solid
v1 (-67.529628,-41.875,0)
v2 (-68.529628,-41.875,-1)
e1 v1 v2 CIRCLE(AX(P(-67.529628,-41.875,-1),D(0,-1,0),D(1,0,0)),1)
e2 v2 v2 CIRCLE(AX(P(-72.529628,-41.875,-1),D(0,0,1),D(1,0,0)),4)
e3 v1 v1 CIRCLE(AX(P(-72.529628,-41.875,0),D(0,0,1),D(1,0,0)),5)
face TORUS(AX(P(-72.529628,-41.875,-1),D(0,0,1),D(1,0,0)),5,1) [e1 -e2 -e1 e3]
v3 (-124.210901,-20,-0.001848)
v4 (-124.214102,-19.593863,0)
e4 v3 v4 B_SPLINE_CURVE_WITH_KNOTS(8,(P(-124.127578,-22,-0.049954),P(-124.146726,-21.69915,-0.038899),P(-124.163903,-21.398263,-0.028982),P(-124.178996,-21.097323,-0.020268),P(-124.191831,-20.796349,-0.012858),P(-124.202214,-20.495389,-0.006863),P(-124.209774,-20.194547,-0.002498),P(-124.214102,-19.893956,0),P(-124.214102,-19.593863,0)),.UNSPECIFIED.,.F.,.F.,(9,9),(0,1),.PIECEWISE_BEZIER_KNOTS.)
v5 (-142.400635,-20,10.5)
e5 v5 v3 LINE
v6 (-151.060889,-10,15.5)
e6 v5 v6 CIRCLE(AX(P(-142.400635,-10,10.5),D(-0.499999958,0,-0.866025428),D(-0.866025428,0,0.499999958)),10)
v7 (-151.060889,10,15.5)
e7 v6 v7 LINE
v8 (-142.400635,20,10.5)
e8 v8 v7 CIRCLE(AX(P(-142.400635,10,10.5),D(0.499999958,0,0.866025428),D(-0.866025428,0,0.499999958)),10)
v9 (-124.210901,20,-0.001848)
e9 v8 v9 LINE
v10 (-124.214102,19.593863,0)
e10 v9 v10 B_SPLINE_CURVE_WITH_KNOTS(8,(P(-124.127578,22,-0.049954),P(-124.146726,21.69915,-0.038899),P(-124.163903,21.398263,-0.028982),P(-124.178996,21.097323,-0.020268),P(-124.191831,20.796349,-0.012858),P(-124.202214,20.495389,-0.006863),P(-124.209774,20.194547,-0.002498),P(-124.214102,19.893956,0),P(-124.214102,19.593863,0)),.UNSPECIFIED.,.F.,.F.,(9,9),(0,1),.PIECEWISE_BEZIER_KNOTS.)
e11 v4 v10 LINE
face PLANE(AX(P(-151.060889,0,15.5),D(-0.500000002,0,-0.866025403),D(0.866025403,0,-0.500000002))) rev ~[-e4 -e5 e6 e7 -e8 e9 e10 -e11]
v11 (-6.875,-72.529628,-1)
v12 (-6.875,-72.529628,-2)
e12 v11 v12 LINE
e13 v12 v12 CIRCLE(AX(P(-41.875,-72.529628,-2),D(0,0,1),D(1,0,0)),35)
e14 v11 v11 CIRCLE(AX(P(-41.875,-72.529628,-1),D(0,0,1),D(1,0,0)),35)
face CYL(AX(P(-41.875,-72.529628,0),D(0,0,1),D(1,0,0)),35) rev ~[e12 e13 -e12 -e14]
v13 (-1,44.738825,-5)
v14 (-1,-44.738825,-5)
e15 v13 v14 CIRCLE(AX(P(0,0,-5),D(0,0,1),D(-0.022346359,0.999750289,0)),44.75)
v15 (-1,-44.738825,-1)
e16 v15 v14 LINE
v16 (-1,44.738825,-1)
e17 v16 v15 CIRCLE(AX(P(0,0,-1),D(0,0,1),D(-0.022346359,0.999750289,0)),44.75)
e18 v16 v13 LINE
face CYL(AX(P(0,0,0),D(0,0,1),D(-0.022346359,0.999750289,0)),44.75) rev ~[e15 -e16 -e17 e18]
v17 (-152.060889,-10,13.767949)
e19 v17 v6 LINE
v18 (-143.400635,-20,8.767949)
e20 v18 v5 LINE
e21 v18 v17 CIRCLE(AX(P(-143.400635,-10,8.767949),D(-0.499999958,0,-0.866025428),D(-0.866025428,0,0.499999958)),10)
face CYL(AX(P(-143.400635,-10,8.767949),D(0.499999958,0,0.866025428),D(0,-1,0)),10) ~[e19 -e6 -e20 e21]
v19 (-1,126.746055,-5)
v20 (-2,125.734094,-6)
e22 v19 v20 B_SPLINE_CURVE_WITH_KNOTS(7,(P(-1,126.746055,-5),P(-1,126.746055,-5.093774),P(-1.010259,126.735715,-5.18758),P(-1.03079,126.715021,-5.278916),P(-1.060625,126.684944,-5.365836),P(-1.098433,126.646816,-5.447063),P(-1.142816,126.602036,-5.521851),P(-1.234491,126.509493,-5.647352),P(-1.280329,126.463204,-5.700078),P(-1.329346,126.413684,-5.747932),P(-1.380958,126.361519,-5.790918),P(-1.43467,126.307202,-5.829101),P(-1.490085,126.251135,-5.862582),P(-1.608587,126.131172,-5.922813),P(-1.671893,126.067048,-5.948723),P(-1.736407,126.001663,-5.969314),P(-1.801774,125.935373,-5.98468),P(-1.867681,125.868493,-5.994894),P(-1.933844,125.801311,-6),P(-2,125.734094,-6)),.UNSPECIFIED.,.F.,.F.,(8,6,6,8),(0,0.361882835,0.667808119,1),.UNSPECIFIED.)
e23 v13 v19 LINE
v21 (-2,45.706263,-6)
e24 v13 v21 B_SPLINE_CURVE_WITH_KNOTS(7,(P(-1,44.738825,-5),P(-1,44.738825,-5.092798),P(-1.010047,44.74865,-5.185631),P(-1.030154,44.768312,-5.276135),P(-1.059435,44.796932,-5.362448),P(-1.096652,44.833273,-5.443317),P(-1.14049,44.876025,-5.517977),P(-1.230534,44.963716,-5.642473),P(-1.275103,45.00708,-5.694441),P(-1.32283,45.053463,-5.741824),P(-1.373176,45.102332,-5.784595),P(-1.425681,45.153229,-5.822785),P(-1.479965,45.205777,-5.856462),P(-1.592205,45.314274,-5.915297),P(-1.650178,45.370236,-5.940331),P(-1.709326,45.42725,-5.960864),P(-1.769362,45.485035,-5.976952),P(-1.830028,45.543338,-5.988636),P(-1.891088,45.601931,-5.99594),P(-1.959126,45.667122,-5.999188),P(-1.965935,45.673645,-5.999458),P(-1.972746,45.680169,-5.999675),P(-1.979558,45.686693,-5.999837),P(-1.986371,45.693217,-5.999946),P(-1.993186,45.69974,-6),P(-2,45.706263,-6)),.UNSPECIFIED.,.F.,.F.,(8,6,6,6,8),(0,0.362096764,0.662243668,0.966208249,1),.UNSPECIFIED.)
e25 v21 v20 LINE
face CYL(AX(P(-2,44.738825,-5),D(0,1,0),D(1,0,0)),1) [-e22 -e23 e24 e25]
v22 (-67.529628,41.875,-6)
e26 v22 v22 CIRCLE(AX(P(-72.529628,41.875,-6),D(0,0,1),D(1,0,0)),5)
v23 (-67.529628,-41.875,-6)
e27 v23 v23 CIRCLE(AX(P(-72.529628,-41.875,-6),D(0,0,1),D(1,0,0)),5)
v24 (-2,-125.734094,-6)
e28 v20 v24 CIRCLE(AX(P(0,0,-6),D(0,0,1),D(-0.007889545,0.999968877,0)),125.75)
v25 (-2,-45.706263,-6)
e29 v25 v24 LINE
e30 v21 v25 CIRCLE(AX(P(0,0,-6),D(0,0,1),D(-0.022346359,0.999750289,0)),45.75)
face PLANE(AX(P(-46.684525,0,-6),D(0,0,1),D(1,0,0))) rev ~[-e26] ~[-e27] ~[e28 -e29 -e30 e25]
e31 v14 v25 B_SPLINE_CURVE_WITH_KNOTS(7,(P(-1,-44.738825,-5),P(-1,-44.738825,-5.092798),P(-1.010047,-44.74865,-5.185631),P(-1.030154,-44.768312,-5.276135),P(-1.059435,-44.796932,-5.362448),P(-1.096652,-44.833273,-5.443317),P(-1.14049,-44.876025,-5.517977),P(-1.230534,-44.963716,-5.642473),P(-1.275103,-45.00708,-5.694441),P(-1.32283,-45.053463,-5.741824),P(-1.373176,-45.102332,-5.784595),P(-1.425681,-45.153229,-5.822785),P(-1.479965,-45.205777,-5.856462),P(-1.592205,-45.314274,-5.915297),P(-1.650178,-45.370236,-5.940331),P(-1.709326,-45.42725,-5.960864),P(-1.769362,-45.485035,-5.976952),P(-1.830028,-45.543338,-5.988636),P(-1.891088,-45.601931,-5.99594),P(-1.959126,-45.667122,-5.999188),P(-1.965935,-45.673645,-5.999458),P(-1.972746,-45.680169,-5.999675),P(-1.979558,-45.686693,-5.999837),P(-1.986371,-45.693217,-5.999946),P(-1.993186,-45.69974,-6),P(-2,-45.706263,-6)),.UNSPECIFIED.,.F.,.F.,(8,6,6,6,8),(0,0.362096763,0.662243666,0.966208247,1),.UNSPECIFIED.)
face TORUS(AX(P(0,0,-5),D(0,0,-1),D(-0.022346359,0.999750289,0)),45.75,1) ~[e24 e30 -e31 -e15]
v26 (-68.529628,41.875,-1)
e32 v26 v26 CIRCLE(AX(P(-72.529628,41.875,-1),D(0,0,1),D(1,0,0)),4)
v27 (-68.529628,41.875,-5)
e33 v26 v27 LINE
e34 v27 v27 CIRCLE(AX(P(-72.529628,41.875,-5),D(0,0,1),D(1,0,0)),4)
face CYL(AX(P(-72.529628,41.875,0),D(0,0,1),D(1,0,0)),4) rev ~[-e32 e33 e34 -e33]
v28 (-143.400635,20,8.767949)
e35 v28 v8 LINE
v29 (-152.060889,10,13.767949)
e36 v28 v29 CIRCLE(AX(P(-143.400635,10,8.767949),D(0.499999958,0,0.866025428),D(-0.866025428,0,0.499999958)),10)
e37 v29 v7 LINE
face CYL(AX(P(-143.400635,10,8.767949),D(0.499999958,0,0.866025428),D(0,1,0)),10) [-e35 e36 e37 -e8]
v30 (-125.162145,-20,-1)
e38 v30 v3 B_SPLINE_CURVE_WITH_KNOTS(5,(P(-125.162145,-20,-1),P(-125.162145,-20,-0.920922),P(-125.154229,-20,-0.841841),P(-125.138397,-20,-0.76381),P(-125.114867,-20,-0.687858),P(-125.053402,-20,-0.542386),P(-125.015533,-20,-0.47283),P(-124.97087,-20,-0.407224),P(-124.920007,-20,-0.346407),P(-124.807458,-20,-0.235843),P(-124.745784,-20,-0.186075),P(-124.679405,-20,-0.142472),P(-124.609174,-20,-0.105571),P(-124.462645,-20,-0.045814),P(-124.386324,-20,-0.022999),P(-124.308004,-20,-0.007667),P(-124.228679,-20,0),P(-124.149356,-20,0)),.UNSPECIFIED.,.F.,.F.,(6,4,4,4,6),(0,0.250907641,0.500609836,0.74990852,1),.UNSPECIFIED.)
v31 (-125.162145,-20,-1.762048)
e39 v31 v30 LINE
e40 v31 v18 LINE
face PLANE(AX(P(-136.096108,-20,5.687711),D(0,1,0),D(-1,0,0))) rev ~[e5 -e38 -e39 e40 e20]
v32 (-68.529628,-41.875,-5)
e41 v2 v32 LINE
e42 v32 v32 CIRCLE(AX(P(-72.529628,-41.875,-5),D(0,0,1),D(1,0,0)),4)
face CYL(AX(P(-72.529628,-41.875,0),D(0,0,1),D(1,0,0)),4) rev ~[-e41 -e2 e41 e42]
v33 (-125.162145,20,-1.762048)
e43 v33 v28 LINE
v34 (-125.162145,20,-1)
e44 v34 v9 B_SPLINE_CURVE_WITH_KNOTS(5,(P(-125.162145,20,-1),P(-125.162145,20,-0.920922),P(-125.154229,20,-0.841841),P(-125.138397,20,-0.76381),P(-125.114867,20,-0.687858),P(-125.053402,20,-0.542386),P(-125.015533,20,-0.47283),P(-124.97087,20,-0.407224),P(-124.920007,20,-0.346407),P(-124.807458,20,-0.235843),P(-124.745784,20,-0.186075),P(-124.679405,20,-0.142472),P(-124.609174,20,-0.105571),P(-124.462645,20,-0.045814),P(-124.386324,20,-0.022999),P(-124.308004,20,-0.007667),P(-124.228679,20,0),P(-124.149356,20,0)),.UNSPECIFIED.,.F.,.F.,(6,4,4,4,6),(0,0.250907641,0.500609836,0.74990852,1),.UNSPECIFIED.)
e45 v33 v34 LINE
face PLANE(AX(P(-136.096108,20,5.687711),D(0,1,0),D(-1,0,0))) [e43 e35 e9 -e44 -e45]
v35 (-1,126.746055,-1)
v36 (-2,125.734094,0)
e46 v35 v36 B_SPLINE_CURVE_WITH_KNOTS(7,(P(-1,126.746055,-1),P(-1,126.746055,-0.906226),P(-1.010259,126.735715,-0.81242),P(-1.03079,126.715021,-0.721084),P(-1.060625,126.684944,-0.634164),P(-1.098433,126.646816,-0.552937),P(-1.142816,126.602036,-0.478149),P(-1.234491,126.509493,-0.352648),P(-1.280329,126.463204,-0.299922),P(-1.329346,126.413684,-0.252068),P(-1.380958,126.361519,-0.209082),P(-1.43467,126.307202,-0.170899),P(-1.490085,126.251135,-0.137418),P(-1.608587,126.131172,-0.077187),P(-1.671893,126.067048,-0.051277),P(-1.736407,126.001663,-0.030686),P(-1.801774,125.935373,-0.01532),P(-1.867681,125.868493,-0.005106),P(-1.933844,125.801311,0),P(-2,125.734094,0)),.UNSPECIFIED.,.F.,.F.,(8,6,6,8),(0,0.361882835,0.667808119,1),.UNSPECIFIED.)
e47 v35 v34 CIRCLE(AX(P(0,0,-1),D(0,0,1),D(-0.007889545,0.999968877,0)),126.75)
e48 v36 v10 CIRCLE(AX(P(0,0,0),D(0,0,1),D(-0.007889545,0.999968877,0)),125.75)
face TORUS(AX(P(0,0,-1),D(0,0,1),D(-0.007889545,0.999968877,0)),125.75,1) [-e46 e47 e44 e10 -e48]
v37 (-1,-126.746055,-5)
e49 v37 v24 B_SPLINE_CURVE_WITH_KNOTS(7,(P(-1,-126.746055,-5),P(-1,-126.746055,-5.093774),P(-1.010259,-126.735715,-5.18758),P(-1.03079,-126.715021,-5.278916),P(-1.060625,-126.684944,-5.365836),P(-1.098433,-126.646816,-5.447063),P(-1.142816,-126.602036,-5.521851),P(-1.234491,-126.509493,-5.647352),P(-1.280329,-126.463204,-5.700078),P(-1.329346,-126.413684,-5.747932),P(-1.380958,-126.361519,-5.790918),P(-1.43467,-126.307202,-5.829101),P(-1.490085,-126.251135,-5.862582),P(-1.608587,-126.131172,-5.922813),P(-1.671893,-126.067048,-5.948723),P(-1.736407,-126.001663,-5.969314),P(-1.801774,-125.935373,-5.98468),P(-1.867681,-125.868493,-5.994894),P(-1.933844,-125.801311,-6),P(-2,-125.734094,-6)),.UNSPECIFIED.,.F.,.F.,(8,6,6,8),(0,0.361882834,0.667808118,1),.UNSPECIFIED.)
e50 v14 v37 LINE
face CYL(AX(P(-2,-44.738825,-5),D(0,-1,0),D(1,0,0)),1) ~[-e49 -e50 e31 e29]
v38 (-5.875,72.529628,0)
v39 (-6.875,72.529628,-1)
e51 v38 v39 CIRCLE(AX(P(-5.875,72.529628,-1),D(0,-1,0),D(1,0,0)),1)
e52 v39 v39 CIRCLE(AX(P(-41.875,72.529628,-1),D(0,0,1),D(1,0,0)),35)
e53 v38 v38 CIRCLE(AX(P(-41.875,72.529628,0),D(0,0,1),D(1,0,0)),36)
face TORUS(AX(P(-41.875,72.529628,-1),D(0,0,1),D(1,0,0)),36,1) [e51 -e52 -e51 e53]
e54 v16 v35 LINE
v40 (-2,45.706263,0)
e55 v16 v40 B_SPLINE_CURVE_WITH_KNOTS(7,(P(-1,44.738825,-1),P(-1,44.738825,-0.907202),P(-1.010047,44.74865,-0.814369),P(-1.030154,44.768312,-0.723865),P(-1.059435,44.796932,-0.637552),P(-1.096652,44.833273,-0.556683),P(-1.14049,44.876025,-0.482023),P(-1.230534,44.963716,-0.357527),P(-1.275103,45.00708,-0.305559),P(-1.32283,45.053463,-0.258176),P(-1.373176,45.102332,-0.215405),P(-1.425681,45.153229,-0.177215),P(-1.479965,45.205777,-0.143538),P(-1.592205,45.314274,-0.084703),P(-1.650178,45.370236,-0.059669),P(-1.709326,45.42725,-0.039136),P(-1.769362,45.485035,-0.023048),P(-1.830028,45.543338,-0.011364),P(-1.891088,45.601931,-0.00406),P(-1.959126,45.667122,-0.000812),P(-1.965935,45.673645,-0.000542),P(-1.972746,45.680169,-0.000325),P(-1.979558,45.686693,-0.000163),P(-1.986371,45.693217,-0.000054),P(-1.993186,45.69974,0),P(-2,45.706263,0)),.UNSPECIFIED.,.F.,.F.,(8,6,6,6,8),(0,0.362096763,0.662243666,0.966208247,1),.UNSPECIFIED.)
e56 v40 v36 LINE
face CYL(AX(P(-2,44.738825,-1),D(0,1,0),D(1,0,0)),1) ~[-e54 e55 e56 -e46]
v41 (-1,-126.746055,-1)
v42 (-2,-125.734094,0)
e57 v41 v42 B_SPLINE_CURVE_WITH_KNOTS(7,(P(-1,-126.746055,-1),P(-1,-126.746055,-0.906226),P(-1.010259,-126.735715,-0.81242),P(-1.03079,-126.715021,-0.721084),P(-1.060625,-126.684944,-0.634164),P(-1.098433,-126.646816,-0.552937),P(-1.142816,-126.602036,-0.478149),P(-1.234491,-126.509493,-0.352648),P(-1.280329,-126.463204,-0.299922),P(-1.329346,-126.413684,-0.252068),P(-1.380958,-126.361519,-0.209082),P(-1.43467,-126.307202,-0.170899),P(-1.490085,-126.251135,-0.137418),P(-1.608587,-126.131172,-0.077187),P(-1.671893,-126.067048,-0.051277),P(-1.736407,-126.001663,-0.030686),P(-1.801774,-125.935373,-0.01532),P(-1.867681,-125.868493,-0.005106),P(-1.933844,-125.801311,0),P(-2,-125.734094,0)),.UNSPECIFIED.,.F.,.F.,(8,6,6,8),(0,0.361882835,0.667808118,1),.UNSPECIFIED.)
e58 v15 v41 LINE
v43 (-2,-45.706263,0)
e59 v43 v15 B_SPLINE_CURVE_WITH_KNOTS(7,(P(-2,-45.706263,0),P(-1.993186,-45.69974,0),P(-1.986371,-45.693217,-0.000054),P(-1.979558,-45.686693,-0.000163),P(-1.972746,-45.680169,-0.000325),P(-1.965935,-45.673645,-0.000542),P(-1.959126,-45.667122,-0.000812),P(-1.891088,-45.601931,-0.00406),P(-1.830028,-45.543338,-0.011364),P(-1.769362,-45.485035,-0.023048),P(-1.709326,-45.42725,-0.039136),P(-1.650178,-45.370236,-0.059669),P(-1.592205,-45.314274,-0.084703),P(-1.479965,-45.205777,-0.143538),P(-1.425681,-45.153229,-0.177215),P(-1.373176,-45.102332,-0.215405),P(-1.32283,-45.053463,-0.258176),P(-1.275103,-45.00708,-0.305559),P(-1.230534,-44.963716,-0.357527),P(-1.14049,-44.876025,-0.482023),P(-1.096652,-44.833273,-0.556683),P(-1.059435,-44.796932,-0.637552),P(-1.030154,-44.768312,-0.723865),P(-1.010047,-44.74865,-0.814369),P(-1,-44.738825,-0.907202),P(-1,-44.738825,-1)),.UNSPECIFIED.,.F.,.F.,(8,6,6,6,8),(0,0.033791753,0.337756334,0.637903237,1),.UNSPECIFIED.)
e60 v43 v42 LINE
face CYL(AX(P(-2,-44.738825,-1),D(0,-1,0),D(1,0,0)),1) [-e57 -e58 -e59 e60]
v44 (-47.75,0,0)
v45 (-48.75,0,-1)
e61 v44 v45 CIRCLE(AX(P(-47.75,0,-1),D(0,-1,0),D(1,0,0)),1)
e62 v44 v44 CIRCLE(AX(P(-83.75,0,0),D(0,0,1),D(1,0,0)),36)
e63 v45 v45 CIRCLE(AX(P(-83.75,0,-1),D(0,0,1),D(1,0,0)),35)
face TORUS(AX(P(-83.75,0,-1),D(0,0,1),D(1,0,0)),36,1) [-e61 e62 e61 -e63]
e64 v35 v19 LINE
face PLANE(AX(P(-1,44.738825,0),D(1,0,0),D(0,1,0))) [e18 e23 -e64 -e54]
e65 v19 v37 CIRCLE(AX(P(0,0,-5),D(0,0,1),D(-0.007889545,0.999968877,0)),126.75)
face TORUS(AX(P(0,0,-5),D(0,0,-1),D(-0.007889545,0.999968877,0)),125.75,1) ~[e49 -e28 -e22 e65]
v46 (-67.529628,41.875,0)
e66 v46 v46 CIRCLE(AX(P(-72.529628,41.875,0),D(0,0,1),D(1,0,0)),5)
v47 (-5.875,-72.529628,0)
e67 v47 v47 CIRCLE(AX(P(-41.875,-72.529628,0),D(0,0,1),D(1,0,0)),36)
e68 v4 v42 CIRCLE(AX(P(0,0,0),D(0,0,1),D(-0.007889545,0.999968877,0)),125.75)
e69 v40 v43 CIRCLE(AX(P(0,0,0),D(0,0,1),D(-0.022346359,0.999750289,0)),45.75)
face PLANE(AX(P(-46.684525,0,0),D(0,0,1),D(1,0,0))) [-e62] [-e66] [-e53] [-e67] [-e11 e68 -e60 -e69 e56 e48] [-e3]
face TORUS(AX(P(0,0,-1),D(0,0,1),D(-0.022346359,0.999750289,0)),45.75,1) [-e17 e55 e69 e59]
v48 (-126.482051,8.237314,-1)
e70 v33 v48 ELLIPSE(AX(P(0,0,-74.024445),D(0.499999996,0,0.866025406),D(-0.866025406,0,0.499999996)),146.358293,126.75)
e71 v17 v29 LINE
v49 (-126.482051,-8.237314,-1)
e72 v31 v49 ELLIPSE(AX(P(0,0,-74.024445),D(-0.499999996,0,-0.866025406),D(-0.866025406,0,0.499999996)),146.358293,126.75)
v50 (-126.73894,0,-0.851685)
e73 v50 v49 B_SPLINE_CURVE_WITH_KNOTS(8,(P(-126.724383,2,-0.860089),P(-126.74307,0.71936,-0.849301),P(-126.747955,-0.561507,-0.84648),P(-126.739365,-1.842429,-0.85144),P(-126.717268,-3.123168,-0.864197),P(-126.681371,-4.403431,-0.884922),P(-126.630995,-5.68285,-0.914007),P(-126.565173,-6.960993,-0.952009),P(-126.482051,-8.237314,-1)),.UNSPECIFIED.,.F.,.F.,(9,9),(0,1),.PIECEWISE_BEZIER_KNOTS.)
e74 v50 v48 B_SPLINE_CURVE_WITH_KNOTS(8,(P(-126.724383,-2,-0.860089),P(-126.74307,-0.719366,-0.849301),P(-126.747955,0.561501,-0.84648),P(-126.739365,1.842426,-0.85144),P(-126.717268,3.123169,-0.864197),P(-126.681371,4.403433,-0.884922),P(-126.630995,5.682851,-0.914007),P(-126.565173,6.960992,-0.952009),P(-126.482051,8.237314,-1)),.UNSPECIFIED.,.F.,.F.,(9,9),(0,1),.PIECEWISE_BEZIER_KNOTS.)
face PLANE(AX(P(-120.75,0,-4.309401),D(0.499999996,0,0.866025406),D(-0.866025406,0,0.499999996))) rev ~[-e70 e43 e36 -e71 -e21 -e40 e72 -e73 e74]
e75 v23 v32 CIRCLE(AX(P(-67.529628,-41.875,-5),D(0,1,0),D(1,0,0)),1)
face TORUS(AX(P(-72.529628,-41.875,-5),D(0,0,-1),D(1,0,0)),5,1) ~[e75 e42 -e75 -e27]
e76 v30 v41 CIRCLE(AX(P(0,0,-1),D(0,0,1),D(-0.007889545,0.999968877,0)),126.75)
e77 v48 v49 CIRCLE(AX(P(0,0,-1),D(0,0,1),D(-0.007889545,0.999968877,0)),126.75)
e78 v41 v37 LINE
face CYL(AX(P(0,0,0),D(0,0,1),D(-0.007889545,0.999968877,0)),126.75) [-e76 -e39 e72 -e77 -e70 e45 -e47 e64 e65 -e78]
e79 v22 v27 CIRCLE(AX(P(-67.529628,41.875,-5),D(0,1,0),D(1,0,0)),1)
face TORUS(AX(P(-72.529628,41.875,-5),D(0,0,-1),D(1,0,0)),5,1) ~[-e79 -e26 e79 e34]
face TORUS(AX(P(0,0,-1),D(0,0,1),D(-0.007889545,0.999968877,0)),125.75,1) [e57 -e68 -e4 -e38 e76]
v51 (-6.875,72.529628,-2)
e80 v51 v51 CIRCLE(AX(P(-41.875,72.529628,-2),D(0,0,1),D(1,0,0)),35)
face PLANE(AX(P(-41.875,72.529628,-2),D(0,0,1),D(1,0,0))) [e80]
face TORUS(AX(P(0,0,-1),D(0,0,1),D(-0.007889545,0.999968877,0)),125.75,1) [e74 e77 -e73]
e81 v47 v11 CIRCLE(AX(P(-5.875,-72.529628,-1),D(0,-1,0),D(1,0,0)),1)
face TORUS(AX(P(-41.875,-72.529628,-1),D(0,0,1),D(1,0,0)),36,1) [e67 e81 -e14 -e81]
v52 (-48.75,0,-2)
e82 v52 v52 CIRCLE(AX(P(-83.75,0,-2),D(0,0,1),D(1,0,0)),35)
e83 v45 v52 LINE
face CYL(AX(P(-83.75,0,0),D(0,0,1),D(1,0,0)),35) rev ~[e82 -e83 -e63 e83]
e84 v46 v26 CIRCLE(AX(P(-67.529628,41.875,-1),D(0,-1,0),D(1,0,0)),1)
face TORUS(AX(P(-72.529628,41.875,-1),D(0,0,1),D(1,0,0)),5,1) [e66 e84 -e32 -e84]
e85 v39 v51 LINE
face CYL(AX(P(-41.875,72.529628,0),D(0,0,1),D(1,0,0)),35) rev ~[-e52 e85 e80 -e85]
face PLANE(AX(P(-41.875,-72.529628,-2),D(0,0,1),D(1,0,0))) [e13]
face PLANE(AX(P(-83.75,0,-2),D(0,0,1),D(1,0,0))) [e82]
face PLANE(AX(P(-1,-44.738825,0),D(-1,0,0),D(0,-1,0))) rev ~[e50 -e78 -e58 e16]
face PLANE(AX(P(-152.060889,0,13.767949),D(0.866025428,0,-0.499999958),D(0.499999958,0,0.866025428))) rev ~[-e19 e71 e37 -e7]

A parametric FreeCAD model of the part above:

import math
import FreeCAD as App
import Part
import Sketcher
from FreeCAD import Vector
Q = App.Units.Quantity


def edges_at(feature, points):
    """Names of the edges that pass closest to the given points."""
    edges = feature.Shape.Edges
    near = lambda p: min(range(len(edges)), key=lambda i: edges[i].distToShape(Part.Vertex(*p))[0])
    return sorted({f"Edge{near(p) + 1}" for p in points})


def add_polygon(sketch, points):
    """Adds a closed chain of lines whose ends are joined by coincident constraints."""
    first, n = sketch.GeometryCount, len(points)
    for a, b in zip(points, points[1:] + points[:1]):
        sketch.addGeometry(Part.LineSegment(App.Vector(*a, 0), App.Vector(*b, 0)), False)
    for i in range(n):
        sketch.addConstraint(Sketcher.Constraint("Coincident", first + i, 2, first + (i + 1) % n, 1))

doc = App.newDocument("Part")
body = doc.addObject("PartDesign::Body", "Body")

# Sketch on XY plane
sketch1 = body.newObject("Sketcher::SketchObject", "Sketch")
sketch1.AttachmentSupport = (doc.getObject("XY_Plane"), [""])
sketch1.MapMode = "FlatFace"
sketch1.addGeometry([
    Part.ArcOfCircle(Part.Circle(Vector(0, 0, 0), Vector(0, 0, 1), 126.7), math.radians(90), math.radians(270)),  # 0
    Part.LineSegment(Vector(-1, -126.7, 0), Vector(-1, -44.7, 0)),  # 1
    Part.ArcOfCircle(Part.Circle(Vector(0, 0, 0), Vector(0, 0, 1), 44.7), math.radians(91), math.radians(269)),  # 2
    Part.LineSegment(Vector(-1, 44.7, 0), Vector(-1, 126.7, 0)),  # 3
    Part.Circle(Vector(-72.5, -41.9, 0), Vector(0, 0, 1), 4),  # 4
    Part.Circle(Vector(-72.5, 41.9, 0), Vector(0, 0, 1), 4),  # 5
], False)
sketch1.addConstraint([
    Sketcher.Constraint("Coincident", 0, 2, 1, 1),
    Sketcher.Constraint("Coincident", 1, 2, 2, 2),
    Sketcher.Constraint("Coincident", 2, 1, 3, 1),
    Sketcher.Constraint("Coincident", 3, 2, 0, 1),
    Sketcher.Constraint("Vertical", 1),
    Sketcher.Constraint("Vertical", 3),
    Sketcher.Constraint("Coincident", 0, 3, -1, 1),
    Sketcher.Constraint("Coincident", 2, 3, -1, 1),
    Sketcher.Constraint("Equal", 4, 5),
    Sketcher.Constraint("Symmetric", 4, 3, 5, 3, -1),
    Sketcher.Constraint("Vertical", 1, 2, 2, 1),
    Sketcher.Constraint("Diameter", 4, 8.0),
    Sketcher.Constraint("Radius", 0, 126.75),
    Sketcher.Constraint("Radius", 2, 44.75),
    Sketcher.Constraint("DistanceX", 0, 2, -1, 1, 1.0),
    Sketcher.Constraint("DistanceY", 4, 3, 5, 3, 83.75),
    Sketcher.Constraint("DistanceX", 4, 3, -1, 1, 72.529628),
])
pad1 = body.newObject("PartDesign::Pad", "Pad")
pad1.Profile = sketch1
pad1.Length = 6
pad1.Reversed = True

# Sketch on XY plane
sketch2 = body.newObject("Sketcher::SketchObject", "Sketch001")
sketch2.AttachmentSupport = (doc.getObject("XY_Plane"), [""])
sketch2.MapMode = "FlatFace"
sketch2.addGeometry([
    Part.Circle(Vector(-42, 73, 0), Vector(0, 0, 1), 35),
    Part.Circle(Vector(-84, 0, 0), Vector(0, 0, 1), 35),
    Part.Circle(Vector(-42, -73, 0), Vector(0, 0, 1), 35),
], False)
sketch2.addConstraint([
    Sketcher.Constraint("Equal", 0, 1),
    Sketcher.Constraint("Equal", 1, 2),
    Sketcher.Constraint("Symmetric", 0, 3, 2, 3, -1),
    Sketcher.Constraint("PointOnObject", 1, 3, -1),
    Sketcher.Constraint("Diameter", 0, 70.0),
    Sketcher.Constraint("DistanceX", 1, 3, -1, 1, 83.75),
    Sketcher.Constraint("DistanceX", 0, 3, -1, 1, 41.875),
    Sketcher.Constraint("DistanceY", -1, 1, 0, 3, 72.529628),
])
pocket1 = body.newObject("PartDesign::Pocket", "Pocket")
pocket1.Profile = sketch2
pocket1.Length = 2
doc.recompute()

fillet = body.newObject("PartDesign::Fillet", "Fillet")
fillet.Base = (pocket1, edges_at(pocket1, [
    (-1, 85.742, 0),
    (-44.75, 0, 0),
    (-126.75, 0, 0),
    (-1, -85.742, 0),
    (-76.53, -41.875, 0),
    (-118.75, 0, 0),
    (-76.875, -72.53, 0),
    (-76.53, 41.875, 0),
    (-76.875, 72.53, 0),
    (-1, 85.742, -6),
    (-126.75, 0, -6),
    (-1, -85.742, -6),
    (-44.75, 0, -6),
    (-76.53, 41.875, -6),
    (-76.53, -41.875, -6),
]))
fillet.Radius = 1

# Sketch on XZ plane
sketch3 = body.newObject("Sketcher::SketchObject", "Sketch002")
sketch3.AttachmentSupport = (doc.getObject("XZ_Plane"), [""])
sketch3.MapMode = "FlatFace"
add_polygon(sketch3, [(-152.1, 13.8), (-120.8, -4.3), (-120.8, -2), (-151.1, 15.5)])  # lines 0-3
sketch3.addConstraint([
    Sketcher.Constraint("Vertical", 1),
    Sketcher.Constraint("Parallel", 0, 2),
    Sketcher.Constraint("Perpendicular", 2, 3),
    Sketcher.Constraint("Angle", 0, Q("-30 deg")),
    Sketcher.Constraint("Distance", 2, 35.0),
    Sketcher.Constraint("Distance", 3, 2.0),
    Sketcher.Constraint("DistanceY", 1, 2, -1, 1, 2.0),
    Sketcher.Constraint("DistanceX", 0, 2, -1, 1, 120.75),
])
pad2 = body.newObject("PartDesign::Pad", "Pad001")
pad2.Profile = sketch3
pad2.Type = "TwoLengths"
pad2.Length = 20
pad2.Length2 = 20
doc.recompute()

fillet2 = body.newObject("PartDesign::Fillet", "Fillet001")
fillet2.Base = (pad2, edges_at(pad2, [(-151.561, -20, 14.634), (-151.561, 20, 14.634)]))
fillet2.Radius = 10

doc.recompute()
